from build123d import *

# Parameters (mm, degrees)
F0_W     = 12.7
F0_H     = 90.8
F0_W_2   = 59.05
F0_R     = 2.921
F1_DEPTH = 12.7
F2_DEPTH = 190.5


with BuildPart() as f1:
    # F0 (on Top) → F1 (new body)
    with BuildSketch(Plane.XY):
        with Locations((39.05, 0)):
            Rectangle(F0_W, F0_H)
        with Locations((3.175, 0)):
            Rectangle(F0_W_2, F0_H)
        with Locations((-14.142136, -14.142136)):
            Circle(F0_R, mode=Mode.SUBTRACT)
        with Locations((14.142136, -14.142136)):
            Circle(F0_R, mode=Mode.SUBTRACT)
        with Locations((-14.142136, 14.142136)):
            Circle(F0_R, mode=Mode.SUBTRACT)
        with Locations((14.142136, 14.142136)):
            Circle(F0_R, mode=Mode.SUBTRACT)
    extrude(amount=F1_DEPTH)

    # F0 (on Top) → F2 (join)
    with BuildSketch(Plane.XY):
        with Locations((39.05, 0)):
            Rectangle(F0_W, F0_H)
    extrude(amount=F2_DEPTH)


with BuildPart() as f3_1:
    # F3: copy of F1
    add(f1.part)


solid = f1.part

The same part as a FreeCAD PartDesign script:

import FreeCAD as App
import Part
import Sketcher

V = App.Vector
Q = App.Units.Quantity


def add_polygon(sketch, points):
    """Adds a closed chain of lines whose ends are joined by coincident constraints."""
    first, n = sketch.GeometryCount, len(points)
    for a, b in zip(points, points[1:] + points[:1]):
        sketch.addGeometry(Part.LineSegment(App.Vector(*a, 0), App.Vector(*b, 0)), False)
    for i in range(n):
        sketch.addConstraint(Sketcher.Constraint("Coincident", first + i, 2, first + (i + 1) % n, 1))

doc = App.newDocument("Part")
body = doc.addObject("PartDesign::Body", "Body")

sketch1 = body.newObject("Sketcher::SketchObject", "Sketch")
sketch1.AttachmentSupport = (doc.getObject("XY_Plane"), [""])
sketch1.MapMode = "FlatFace"
add_polygon(sketch1, [(45.4, -45.4), (45.4, 45.4), (-26.4, 45.4), (-26.4, -45.4)])
sketch1.addGeometry(Part.Circle(V(-14.1, -14.1, 0), V(0, 0, 1), 2.9), False)
sketch1.addGeometry(Part.Circle(V(14.1, -14.1, 0), V(0, 0, 1), 2.9), False)
sketch1.addGeometry(Part.Circle(V(-14.1, 14.1, 0), V(0, 0, 1), 2.9), False)
sketch1.addGeometry(Part.Circle(V(14.1, 14.1, 0), V(0, 0, 1), 2.9), False)
sketch1.addConstraint([
    Sketcher.Constraint("Vertical", 0),
    Sketcher.Constraint("Horizontal", 1),
    Sketcher.Constraint("Vertical", 2),
    Sketcher.Constraint("Horizontal", 3),
    Sketcher.Constraint("Equal", 4, 5),
    Sketcher.Constraint("Equal", 5, 6),
    Sketcher.Constraint("Equal", 6, 7),
    Sketcher.Constraint("Symmetric", 5, 3, 6, 3, -1, 1),
    Sketcher.Constraint("Symmetric", 4, 3, 7, 3, -1, 1),
    Sketcher.Constraint("Symmetric", 4, 3, 5, 3, -2),
    Sketcher.Constraint("Diameter", 4, Q("0.23 in")),
    Sketcher.Constraint("DistanceX", 1, 2, 1, 1, 71.75),
    Sketcher.Constraint("DistanceY", 0, 1, 0, 2, 90.8),
    Sketcher.Constraint("DistanceX", -1, 1, 0, 2, 45.4),
    Sketcher.Constraint("DistanceY", -1, 1, 0, 2, 45.4),
    Sketcher.Constraint("DistanceX", 4, 3, -1, 1, 14.142136),
    Sketcher.Constraint("DistanceY", 4, 3, -1, 1, 14.142136),
])
pad1 = body.newObject("PartDesign::Pad", "Pad")
pad1.Profile = sketch1
pad1.Length = Q("0.5 in")

sketch2 = body.newObject("Sketcher::SketchObject", "Sketch001")
sketch2.AttachmentSupport = (doc.getObject("XY_Plane"), [""])
sketch2.MapMode = "FlatFace"
add_polygon(sketch2, [(33, 45), (33, -45), (45, -45), (45, 45)])
sketch2.addConstraint([
    Sketcher.Constraint("Vertical", 0),
    Sketcher.Constraint("Horizontal", 1),
    Sketcher.Constraint("Vertical", 2),
    Sketcher.Constraint("Horizontal", 3),
    Sketcher.Constraint("DistanceX", 1, 1, 1, 2, Q("0.5 in")),
    Sketcher.Constraint("DistanceY", 0, 2, 0, 1, 90.8),
    Sketcher.Constraint("DistanceX", -1, 1, 0, 2, 32.7),
    Sketcher.Constraint("DistanceY", 0, 2, -1, 1, 45.4),
])
pad2 = body.newObject("PartDesign::Pad", "Pad001")
pad2.Profile = sketch2
pad2.Length = Q("7.5 in")
body2 = doc.addObject("PartDesign::Body", "Body001")
doc.recompute()

body2.BaseFeature = body
doc.recompute()
body.Visibility = False

doc.recompute()
